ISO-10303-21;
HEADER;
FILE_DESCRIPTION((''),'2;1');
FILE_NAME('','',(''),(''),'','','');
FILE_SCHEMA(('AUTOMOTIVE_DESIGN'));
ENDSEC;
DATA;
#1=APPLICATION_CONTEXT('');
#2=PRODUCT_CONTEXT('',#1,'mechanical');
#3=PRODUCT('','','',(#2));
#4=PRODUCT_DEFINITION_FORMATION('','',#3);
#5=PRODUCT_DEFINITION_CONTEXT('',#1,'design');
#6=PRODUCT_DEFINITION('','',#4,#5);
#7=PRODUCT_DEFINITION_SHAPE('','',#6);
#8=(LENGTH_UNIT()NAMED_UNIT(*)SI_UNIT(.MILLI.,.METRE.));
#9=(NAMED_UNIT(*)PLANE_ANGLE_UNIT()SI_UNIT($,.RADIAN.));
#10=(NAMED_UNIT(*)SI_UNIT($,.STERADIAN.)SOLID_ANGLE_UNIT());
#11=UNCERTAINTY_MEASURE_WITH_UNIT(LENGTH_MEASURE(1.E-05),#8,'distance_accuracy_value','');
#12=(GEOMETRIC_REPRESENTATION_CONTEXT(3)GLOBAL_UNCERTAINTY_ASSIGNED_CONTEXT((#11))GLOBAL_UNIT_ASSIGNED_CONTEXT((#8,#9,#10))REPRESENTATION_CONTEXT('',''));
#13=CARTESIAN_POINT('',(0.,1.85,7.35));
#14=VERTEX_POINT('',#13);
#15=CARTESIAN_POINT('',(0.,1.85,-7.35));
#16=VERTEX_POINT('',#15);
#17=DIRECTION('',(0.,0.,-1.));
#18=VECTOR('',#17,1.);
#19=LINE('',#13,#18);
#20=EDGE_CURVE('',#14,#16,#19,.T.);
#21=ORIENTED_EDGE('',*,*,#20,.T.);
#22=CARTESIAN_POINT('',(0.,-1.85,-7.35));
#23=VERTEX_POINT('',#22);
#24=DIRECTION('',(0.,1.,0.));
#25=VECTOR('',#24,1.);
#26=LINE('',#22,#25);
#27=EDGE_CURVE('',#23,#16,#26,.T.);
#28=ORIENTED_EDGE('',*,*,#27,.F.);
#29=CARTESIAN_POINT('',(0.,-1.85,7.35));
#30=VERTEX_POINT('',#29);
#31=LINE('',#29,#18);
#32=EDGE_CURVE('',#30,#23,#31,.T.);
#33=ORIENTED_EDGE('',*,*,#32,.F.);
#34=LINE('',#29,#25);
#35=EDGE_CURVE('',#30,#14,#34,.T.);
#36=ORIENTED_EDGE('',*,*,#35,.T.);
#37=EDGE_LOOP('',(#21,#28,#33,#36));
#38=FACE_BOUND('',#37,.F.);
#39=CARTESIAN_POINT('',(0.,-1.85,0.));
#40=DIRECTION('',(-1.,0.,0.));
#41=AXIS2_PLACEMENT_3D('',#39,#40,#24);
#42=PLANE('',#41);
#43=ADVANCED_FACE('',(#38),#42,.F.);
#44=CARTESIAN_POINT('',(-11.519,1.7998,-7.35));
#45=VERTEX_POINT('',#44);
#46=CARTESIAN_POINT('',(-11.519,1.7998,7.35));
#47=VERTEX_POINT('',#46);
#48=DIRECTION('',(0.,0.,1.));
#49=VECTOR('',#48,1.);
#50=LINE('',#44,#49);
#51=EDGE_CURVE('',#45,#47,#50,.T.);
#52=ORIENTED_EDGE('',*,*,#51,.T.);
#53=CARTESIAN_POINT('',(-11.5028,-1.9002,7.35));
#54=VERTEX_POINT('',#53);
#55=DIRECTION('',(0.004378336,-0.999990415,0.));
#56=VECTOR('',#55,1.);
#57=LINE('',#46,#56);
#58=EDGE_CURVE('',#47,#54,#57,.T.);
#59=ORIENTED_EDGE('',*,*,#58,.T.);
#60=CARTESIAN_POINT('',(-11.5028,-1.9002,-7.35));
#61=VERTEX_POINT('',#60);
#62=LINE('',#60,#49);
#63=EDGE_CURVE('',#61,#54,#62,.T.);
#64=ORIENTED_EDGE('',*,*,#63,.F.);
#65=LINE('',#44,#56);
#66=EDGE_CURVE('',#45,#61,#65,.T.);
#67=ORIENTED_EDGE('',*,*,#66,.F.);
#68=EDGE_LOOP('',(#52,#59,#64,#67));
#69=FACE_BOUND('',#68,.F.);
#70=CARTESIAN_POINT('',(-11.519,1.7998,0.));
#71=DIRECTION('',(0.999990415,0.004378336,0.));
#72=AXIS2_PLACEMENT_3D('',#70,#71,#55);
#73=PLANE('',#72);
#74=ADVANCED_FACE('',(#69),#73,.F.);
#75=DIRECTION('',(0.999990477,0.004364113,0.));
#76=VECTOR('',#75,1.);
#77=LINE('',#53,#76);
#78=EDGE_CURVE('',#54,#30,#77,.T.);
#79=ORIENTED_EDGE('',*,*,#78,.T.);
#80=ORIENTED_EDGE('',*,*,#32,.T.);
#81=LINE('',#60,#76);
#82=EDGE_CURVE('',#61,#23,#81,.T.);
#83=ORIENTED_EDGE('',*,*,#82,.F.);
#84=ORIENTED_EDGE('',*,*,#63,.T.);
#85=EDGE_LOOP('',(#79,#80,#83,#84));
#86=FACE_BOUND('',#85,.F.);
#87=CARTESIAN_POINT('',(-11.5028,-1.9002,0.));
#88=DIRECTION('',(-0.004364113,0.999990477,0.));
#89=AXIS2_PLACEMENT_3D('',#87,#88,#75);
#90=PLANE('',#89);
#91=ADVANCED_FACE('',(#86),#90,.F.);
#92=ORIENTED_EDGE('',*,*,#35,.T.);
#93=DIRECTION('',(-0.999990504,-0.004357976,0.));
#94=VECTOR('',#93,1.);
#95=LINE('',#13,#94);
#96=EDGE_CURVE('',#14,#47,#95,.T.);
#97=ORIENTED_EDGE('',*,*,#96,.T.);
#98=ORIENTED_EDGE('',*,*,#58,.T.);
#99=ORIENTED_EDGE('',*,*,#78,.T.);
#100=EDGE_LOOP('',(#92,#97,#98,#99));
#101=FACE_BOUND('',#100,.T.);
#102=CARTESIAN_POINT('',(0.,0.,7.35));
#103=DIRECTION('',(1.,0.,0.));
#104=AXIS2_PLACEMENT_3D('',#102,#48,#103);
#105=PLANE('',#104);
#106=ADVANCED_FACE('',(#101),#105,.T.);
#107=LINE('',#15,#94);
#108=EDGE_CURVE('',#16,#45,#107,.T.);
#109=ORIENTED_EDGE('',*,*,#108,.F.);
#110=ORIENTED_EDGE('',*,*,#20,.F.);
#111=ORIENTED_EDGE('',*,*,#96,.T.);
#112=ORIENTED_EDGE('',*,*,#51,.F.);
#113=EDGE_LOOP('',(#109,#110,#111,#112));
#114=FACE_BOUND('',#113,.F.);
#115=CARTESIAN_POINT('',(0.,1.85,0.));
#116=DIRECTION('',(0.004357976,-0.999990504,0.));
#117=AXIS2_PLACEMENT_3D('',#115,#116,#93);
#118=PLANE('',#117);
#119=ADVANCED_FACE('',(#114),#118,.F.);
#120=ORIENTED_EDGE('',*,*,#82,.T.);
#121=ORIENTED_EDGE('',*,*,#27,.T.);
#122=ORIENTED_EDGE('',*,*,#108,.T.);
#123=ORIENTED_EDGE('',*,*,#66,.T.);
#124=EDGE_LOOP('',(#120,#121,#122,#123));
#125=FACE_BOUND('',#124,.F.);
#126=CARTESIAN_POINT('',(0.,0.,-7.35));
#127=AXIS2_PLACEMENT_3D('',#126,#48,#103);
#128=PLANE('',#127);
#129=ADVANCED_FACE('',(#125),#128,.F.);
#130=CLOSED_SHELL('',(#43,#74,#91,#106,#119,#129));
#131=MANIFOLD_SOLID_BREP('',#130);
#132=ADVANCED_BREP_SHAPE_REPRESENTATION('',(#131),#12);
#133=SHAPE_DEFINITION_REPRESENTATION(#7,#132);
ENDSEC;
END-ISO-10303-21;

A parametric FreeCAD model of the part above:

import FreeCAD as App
import Part
import Sketcher

V = App.Vector
Q = App.Units.Quantity


def add_polygon(sketch, points):
    """Adds a closed chain of lines whose ends are joined by coincident constraints."""
    first, n = sketch.GeometryCount, len(points)
    for a, b in zip(points, points[1:] + points[:1]):
        sketch.addGeometry(Part.LineSegment(App.Vector(*a, 0), App.Vector(*b, 0)), False)
    for i in range(n):
        sketch.addConstraint(Sketcher.Constraint("Coincident", first + i, 2, first + (i + 1) % n, 1))

doc = App.newDocument("Part")
body = doc.addObject("PartDesign::Body", "Body")

sketch1 = body.newObject("Sketcher::SketchObject", "Sketch")
sketch1.AttachmentSupport = (doc.getObject("XY_Plane"), [""])
sketch1.MapMode = "FlatFace"
add_polygon(sketch1, [(0, 1.9), (-11.5, 1.8), (-11.5, -1.9), (0, -1.9)])
sketch1.addConstraint([
    Sketcher.Constraint("Vertical", 3),
    Sketcher.Constraint("Symmetric", 2, 2, 3, 2, -1, 1),
    Sketcher.Constraint("Perpendicular", 0, 1),
    Sketcher.Constraint("Perpendicular", 1, 2),
    Sketcher.Constraint("DistanceY", 3, 1, 3, 2, Q("3.7 mm")),
    Sketcher.Constraint("Angle", 0, Q("-179.7503 deg")),
    Sketcher.Constraint("Distance", 0, Q("11.519 mm")),
])
pad1 = body.newObject("PartDesign::Pad", "Pad")
pad1.Profile = sketch1
pad1.Length = 14.7
pad1.Midplane = True

doc.recompute()
